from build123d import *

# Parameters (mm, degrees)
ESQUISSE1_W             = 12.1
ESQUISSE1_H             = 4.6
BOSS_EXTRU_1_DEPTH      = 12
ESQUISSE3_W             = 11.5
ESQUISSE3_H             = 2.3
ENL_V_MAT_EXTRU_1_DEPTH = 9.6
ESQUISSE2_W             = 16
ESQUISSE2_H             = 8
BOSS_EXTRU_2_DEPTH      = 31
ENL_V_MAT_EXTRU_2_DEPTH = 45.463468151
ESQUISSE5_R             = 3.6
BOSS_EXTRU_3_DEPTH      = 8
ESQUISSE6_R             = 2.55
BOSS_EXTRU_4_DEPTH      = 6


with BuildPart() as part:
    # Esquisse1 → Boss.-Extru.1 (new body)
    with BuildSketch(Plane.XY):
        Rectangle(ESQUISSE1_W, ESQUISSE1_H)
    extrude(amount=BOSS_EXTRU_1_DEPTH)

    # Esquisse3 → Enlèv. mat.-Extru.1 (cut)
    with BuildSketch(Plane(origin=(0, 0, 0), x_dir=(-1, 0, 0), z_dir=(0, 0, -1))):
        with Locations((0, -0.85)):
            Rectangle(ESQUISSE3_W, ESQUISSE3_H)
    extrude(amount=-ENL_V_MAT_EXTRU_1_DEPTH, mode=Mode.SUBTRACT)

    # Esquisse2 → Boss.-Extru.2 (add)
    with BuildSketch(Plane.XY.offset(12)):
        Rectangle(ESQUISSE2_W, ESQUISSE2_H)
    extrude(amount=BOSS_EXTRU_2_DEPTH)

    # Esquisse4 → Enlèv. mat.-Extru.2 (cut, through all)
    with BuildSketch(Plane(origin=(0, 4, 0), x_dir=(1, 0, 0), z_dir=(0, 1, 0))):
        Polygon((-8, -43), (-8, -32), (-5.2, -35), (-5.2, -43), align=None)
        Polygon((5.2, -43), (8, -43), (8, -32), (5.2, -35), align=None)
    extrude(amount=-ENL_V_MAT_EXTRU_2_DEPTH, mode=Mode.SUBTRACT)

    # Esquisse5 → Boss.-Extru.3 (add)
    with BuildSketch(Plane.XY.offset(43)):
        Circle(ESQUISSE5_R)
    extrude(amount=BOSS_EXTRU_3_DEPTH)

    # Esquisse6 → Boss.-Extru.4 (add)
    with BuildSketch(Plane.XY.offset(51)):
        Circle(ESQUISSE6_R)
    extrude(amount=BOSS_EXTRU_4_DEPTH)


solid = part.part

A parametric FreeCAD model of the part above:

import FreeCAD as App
import Part
import Sketcher
Q = App.Units.Quantity

doc = App.newDocument("Part")
body = doc.addObject("PartDesign::Body", "Body")

sketch1 = doc.addObject("Sketcher::SketchObject", "Sketch")
body.addObject(sketch1)
sketch1.AttachmentSupport = (doc.XY_Plane, [""])
sketch1.MapMode = "FlatFace"
sketch1.addGeometry([
    Part.LineSegment(App.Vector(-6, 2.3, 0), App.Vector(-6, -2.3, 0)),
    Part.LineSegment(App.Vector(-6, -2.3, 0), App.Vector(6, -2.3, 0)),
    Part.LineSegment(App.Vector(6, -2.3, 0), App.Vector(6, 2.3, 0)),
    Part.LineSegment(App.Vector(6, 2.3, 0), App.Vector(-6, 2.3, 0)),
], False)
sketch1.addConstraint([
    Sketcher.Constraint("Coincident", 0, 2, 1, 1),
    Sketcher.Constraint("Coincident", 1, 2, 2, 1),
    Sketcher.Constraint("Coincident", 2, 2, 3, 1),
    Sketcher.Constraint("Coincident", 3, 2, 0, 1),
    Sketcher.Constraint("Vertical", 0),
    Sketcher.Constraint("Horizontal", 1),
    Sketcher.Constraint("Vertical", 2),
    Sketcher.Constraint("Horizontal", 3),
    Sketcher.Constraint("Symmetric", 0, 2, 2, 2, -1, 1),
    Sketcher.Constraint("DistanceX", 1, 1, 1, 2, Q("12.1 mm")),
    Sketcher.Constraint("DistanceY", 0, 2, 0, 1, Q("4.6 mm")),
])
pad1 = doc.addObject("PartDesign::Pad", "Pad")
body.addObject(pad1)
pad1.Profile = sketch1
pad1.Length = 12

sketch2 = doc.addObject("Sketcher::SketchObject", "Sketch001")
body.addObject(sketch2)
sketch2.AttachmentSupport = (doc.XY_Plane, [""])
sketch2.MapMode = "FlatFace"
sketch2.addGeometry([
    Part.LineSegment(App.Vector(5.8, 0.3, 0), App.Vector(5.8, -2, 0)),
    Part.LineSegment(App.Vector(5.8, -2, 0), App.Vector(-5.8, -2, 0)),
    Part.LineSegment(App.Vector(-5.8, -2, 0), App.Vector(-5.8, 0.3, 0)),
    Part.LineSegment(App.Vector(-5.8, 0.3, 0), App.Vector(5.8, 0.3, 0)),
], False)
sketch2.addConstraint([
    Sketcher.Constraint("Coincident", 0, 2, 1, 1),
    Sketcher.Constraint("Coincident", 1, 2, 2, 1),
    Sketcher.Constraint("Coincident", 2, 2, 3, 1),
    Sketcher.Constraint("Coincident", 3, 2, 0, 1),
    Sketcher.Constraint("Vertical", 0),
    Sketcher.Constraint("Horizontal", 1),
    Sketcher.Constraint("Vertical", 2),
    Sketcher.Constraint("Horizontal", 3),
    Sketcher.Constraint("DistanceX", 1, 2, 1, 1, Q("11.5 mm")),
    Sketcher.Constraint("DistanceY", 0, 2, 0, 1, Q("2.3 mm")),
    Sketcher.Constraint("DistanceY", 0, 2, -1, 1, Q("2 mm")),
    Sketcher.Constraint("DistanceX", -1, 1, 0, 2, Q("5.75 mm")),
])
pocket1 = doc.addObject("PartDesign::Pocket", "Pocket")
body.addObject(pocket1)
pocket1.Profile = sketch2
pocket1.Length = 9.6
pocket1.Reversed = True

sketch3 = doc.addObject("Sketcher::SketchObject", "Sketch002")
body.addObject(sketch3)
sketch3.AttachmentSupport = (doc.XY_Plane, [""])
sketch3.MapMode = "FlatFace"
sketch3.AttachmentOffset = App.Placement(App.Vector(0, 0, 12), App.Rotation())
sketch3.addGeometry([
    Part.LineSegment(App.Vector(-8, 4, 0), App.Vector(-8, -4, 0)),
    Part.LineSegment(App.Vector(-8, -4, 0), App.Vector(8, -4, 0)),
    Part.LineSegment(App.Vector(8, -4, 0), App.Vector(8, 4, 0)),
    Part.LineSegment(App.Vector(8, 4, 0), App.Vector(-8, 4, 0)),
], False)
sketch3.addConstraint([
    Sketcher.Constraint("Coincident", 0, 2, 1, 1),
    Sketcher.Constraint("Coincident", 1, 2, 2, 1),
    Sketcher.Constraint("Coincident", 2, 2, 3, 1),
    Sketcher.Constraint("Coincident", 3, 2, 0, 1),
    Sketcher.Constraint("Vertical", 0),
    Sketcher.Constraint("Horizontal", 1),
    Sketcher.Constraint("Vertical", 2),
    Sketcher.Constraint("Horizontal", 3),
    Sketcher.Constraint("Symmetric", 0, 2, 2, 2, -1, 1),
    Sketcher.Constraint("DistanceX", 1, 1, 1, 2, Q("16 mm")),
    Sketcher.Constraint("DistanceY", 0, 2, 0, 1, Q("8 mm")),
])
pad2 = doc.addObject("PartDesign::Pad", "Pad001")
body.addObject(pad2)
pad2.Profile = sketch3
pad2.Length = 31

sketch4 = doc.addObject("Sketcher::SketchObject", "Sketch003")
body.addObject(sketch4)
sketch4.AttachmentSupport = (doc.XZ_Plane, [""])
sketch4.MapMode = "FlatFace"
sketch4.AttachmentOffset = App.Placement(App.Vector(0, 0, -4), App.Rotation())
sketch4.addGeometry([
    Part.LineSegment(App.Vector(-8, 32, 0), App.Vector(-8, 43, 0)),
    Part.LineSegment(App.Vector(-8, 43, 0), App.Vector(-5.2, 43, 0)),
    Part.LineSegment(App.Vector(-5.2, 43, 0), App.Vector(-5.2, 35, 0)),
    Part.LineSegment(App.Vector(-5.2, 35, 0), App.Vector(-8, 32, 0)),
    Part.LineSegment(App.Vector(5.2, 43, 0), App.Vector(8, 43, 0)),
    Part.LineSegment(App.Vector(8, 43, 0), App.Vector(8, 32, 0)),
    Part.LineSegment(App.Vector(8, 32, 0), App.Vector(5.2, 35, 0)),
    Part.LineSegment(App.Vector(5.2, 35, 0), App.Vector(5.2, 43, 0)),
], False)
sketch4.addConstraint([
    Sketcher.Constraint("Coincident", 0, 2, 1, 1),
    Sketcher.Constraint("Coincident", 1, 2, 2, 1),
    Sketcher.Constraint("Coincident", 2, 2, 3, 1),
    Sketcher.Constraint("Coincident", 3, 2, 0, 1),
    Sketcher.Constraint("Coincident", 4, 2, 5, 1),
    Sketcher.Constraint("Coincident", 5, 2, 6, 1),
    Sketcher.Constraint("Coincident", 6, 2, 7, 1),
    Sketcher.Constraint("Coincident", 7, 2, 4, 1),
    Sketcher.Constraint("Vertical", 0),
    Sketcher.Constraint("Horizontal", 1),
    Sketcher.Constraint("Vertical", 2),
    Sketcher.Constraint("Horizontal", 4),
    Sketcher.Constraint("Vertical", 5),
    Sketcher.Constraint("Vertical", 7),
    Sketcher.Constraint("Symmetric", 0, 2, 4, 2, -2),
    Sketcher.Constraint("Symmetric", 2, 2, 6, 2, -2),
    Sketcher.Constraint("Horizontal", 3, 2, 5, 2),
    Sketcher.Constraint("DistanceY", 0, 1, 0, 2, Q("11 mm")),
    Sketcher.Constraint("DistanceY", 2, 2, 2, 1, Q("8 mm")),
    Sketcher.Constraint("DistanceX", 1, 1, 1, 2, Q("2.8 mm")),
    Sketcher.Constraint("DistanceX", 0, 2, -1, 1, Q("8 mm")),
    Sketcher.Constraint("DistanceY", -1, 1, 0, 2, Q("43 mm")),
])
pocket2 = doc.addObject("PartDesign::Pocket", "Pocket001")
body.addObject(pocket2)
pocket2.Profile = sketch4
pocket2.Type = "ThroughAll"
pocket2.Reversed = True

sketch5 = doc.addObject("Sketcher::SketchObject", "Sketch004")
body.addObject(sketch5)
sketch5.AttachmentSupport = (doc.XY_Plane, [""])
sketch5.MapMode = "FlatFace"
sketch5.AttachmentOffset = App.Placement(App.Vector(0, 0, 43), App.Rotation())
sketch5.addGeometry(Part.Circle(App.Vector(0, 0, 0), App.Vector(0, 0, 1), 3.6), False)
sketch5.addConstraint([
    Sketcher.Constraint("Coincident", 0, 3, -1, 1),
    Sketcher.Constraint("Diameter", 0, Q("7.2 mm")),
])
pad3 = doc.addObject("PartDesign::Pad", "Pad002")
body.addObject(pad3)
pad3.Profile = sketch5
pad3.Length = 8

sketch6 = doc.addObject("Sketcher::SketchObject", "Sketch005")
body.addObject(sketch6)
sketch6.AttachmentSupport = (doc.XY_Plane, [""])
sketch6.MapMode = "FlatFace"
sketch6.AttachmentOffset = App.Placement(App.Vector(0, 0, 51), App.Rotation())
sketch6.addGeometry(Part.Circle(App.Vector(0, 0, 0), App.Vector(0, 0, 1), 2.5), False)
sketch6.addConstraint([
    Sketcher.Constraint("Coincident", 0, 3, -1, 1),
    Sketcher.Constraint("Diameter", 0, Q("5.1 mm")),
])
pad4 = doc.addObject("PartDesign::Pad", "Pad003")
body.addObject(pad4)
pad4.Profile = sketch6
pad4.Length = 6

doc.recompute()
